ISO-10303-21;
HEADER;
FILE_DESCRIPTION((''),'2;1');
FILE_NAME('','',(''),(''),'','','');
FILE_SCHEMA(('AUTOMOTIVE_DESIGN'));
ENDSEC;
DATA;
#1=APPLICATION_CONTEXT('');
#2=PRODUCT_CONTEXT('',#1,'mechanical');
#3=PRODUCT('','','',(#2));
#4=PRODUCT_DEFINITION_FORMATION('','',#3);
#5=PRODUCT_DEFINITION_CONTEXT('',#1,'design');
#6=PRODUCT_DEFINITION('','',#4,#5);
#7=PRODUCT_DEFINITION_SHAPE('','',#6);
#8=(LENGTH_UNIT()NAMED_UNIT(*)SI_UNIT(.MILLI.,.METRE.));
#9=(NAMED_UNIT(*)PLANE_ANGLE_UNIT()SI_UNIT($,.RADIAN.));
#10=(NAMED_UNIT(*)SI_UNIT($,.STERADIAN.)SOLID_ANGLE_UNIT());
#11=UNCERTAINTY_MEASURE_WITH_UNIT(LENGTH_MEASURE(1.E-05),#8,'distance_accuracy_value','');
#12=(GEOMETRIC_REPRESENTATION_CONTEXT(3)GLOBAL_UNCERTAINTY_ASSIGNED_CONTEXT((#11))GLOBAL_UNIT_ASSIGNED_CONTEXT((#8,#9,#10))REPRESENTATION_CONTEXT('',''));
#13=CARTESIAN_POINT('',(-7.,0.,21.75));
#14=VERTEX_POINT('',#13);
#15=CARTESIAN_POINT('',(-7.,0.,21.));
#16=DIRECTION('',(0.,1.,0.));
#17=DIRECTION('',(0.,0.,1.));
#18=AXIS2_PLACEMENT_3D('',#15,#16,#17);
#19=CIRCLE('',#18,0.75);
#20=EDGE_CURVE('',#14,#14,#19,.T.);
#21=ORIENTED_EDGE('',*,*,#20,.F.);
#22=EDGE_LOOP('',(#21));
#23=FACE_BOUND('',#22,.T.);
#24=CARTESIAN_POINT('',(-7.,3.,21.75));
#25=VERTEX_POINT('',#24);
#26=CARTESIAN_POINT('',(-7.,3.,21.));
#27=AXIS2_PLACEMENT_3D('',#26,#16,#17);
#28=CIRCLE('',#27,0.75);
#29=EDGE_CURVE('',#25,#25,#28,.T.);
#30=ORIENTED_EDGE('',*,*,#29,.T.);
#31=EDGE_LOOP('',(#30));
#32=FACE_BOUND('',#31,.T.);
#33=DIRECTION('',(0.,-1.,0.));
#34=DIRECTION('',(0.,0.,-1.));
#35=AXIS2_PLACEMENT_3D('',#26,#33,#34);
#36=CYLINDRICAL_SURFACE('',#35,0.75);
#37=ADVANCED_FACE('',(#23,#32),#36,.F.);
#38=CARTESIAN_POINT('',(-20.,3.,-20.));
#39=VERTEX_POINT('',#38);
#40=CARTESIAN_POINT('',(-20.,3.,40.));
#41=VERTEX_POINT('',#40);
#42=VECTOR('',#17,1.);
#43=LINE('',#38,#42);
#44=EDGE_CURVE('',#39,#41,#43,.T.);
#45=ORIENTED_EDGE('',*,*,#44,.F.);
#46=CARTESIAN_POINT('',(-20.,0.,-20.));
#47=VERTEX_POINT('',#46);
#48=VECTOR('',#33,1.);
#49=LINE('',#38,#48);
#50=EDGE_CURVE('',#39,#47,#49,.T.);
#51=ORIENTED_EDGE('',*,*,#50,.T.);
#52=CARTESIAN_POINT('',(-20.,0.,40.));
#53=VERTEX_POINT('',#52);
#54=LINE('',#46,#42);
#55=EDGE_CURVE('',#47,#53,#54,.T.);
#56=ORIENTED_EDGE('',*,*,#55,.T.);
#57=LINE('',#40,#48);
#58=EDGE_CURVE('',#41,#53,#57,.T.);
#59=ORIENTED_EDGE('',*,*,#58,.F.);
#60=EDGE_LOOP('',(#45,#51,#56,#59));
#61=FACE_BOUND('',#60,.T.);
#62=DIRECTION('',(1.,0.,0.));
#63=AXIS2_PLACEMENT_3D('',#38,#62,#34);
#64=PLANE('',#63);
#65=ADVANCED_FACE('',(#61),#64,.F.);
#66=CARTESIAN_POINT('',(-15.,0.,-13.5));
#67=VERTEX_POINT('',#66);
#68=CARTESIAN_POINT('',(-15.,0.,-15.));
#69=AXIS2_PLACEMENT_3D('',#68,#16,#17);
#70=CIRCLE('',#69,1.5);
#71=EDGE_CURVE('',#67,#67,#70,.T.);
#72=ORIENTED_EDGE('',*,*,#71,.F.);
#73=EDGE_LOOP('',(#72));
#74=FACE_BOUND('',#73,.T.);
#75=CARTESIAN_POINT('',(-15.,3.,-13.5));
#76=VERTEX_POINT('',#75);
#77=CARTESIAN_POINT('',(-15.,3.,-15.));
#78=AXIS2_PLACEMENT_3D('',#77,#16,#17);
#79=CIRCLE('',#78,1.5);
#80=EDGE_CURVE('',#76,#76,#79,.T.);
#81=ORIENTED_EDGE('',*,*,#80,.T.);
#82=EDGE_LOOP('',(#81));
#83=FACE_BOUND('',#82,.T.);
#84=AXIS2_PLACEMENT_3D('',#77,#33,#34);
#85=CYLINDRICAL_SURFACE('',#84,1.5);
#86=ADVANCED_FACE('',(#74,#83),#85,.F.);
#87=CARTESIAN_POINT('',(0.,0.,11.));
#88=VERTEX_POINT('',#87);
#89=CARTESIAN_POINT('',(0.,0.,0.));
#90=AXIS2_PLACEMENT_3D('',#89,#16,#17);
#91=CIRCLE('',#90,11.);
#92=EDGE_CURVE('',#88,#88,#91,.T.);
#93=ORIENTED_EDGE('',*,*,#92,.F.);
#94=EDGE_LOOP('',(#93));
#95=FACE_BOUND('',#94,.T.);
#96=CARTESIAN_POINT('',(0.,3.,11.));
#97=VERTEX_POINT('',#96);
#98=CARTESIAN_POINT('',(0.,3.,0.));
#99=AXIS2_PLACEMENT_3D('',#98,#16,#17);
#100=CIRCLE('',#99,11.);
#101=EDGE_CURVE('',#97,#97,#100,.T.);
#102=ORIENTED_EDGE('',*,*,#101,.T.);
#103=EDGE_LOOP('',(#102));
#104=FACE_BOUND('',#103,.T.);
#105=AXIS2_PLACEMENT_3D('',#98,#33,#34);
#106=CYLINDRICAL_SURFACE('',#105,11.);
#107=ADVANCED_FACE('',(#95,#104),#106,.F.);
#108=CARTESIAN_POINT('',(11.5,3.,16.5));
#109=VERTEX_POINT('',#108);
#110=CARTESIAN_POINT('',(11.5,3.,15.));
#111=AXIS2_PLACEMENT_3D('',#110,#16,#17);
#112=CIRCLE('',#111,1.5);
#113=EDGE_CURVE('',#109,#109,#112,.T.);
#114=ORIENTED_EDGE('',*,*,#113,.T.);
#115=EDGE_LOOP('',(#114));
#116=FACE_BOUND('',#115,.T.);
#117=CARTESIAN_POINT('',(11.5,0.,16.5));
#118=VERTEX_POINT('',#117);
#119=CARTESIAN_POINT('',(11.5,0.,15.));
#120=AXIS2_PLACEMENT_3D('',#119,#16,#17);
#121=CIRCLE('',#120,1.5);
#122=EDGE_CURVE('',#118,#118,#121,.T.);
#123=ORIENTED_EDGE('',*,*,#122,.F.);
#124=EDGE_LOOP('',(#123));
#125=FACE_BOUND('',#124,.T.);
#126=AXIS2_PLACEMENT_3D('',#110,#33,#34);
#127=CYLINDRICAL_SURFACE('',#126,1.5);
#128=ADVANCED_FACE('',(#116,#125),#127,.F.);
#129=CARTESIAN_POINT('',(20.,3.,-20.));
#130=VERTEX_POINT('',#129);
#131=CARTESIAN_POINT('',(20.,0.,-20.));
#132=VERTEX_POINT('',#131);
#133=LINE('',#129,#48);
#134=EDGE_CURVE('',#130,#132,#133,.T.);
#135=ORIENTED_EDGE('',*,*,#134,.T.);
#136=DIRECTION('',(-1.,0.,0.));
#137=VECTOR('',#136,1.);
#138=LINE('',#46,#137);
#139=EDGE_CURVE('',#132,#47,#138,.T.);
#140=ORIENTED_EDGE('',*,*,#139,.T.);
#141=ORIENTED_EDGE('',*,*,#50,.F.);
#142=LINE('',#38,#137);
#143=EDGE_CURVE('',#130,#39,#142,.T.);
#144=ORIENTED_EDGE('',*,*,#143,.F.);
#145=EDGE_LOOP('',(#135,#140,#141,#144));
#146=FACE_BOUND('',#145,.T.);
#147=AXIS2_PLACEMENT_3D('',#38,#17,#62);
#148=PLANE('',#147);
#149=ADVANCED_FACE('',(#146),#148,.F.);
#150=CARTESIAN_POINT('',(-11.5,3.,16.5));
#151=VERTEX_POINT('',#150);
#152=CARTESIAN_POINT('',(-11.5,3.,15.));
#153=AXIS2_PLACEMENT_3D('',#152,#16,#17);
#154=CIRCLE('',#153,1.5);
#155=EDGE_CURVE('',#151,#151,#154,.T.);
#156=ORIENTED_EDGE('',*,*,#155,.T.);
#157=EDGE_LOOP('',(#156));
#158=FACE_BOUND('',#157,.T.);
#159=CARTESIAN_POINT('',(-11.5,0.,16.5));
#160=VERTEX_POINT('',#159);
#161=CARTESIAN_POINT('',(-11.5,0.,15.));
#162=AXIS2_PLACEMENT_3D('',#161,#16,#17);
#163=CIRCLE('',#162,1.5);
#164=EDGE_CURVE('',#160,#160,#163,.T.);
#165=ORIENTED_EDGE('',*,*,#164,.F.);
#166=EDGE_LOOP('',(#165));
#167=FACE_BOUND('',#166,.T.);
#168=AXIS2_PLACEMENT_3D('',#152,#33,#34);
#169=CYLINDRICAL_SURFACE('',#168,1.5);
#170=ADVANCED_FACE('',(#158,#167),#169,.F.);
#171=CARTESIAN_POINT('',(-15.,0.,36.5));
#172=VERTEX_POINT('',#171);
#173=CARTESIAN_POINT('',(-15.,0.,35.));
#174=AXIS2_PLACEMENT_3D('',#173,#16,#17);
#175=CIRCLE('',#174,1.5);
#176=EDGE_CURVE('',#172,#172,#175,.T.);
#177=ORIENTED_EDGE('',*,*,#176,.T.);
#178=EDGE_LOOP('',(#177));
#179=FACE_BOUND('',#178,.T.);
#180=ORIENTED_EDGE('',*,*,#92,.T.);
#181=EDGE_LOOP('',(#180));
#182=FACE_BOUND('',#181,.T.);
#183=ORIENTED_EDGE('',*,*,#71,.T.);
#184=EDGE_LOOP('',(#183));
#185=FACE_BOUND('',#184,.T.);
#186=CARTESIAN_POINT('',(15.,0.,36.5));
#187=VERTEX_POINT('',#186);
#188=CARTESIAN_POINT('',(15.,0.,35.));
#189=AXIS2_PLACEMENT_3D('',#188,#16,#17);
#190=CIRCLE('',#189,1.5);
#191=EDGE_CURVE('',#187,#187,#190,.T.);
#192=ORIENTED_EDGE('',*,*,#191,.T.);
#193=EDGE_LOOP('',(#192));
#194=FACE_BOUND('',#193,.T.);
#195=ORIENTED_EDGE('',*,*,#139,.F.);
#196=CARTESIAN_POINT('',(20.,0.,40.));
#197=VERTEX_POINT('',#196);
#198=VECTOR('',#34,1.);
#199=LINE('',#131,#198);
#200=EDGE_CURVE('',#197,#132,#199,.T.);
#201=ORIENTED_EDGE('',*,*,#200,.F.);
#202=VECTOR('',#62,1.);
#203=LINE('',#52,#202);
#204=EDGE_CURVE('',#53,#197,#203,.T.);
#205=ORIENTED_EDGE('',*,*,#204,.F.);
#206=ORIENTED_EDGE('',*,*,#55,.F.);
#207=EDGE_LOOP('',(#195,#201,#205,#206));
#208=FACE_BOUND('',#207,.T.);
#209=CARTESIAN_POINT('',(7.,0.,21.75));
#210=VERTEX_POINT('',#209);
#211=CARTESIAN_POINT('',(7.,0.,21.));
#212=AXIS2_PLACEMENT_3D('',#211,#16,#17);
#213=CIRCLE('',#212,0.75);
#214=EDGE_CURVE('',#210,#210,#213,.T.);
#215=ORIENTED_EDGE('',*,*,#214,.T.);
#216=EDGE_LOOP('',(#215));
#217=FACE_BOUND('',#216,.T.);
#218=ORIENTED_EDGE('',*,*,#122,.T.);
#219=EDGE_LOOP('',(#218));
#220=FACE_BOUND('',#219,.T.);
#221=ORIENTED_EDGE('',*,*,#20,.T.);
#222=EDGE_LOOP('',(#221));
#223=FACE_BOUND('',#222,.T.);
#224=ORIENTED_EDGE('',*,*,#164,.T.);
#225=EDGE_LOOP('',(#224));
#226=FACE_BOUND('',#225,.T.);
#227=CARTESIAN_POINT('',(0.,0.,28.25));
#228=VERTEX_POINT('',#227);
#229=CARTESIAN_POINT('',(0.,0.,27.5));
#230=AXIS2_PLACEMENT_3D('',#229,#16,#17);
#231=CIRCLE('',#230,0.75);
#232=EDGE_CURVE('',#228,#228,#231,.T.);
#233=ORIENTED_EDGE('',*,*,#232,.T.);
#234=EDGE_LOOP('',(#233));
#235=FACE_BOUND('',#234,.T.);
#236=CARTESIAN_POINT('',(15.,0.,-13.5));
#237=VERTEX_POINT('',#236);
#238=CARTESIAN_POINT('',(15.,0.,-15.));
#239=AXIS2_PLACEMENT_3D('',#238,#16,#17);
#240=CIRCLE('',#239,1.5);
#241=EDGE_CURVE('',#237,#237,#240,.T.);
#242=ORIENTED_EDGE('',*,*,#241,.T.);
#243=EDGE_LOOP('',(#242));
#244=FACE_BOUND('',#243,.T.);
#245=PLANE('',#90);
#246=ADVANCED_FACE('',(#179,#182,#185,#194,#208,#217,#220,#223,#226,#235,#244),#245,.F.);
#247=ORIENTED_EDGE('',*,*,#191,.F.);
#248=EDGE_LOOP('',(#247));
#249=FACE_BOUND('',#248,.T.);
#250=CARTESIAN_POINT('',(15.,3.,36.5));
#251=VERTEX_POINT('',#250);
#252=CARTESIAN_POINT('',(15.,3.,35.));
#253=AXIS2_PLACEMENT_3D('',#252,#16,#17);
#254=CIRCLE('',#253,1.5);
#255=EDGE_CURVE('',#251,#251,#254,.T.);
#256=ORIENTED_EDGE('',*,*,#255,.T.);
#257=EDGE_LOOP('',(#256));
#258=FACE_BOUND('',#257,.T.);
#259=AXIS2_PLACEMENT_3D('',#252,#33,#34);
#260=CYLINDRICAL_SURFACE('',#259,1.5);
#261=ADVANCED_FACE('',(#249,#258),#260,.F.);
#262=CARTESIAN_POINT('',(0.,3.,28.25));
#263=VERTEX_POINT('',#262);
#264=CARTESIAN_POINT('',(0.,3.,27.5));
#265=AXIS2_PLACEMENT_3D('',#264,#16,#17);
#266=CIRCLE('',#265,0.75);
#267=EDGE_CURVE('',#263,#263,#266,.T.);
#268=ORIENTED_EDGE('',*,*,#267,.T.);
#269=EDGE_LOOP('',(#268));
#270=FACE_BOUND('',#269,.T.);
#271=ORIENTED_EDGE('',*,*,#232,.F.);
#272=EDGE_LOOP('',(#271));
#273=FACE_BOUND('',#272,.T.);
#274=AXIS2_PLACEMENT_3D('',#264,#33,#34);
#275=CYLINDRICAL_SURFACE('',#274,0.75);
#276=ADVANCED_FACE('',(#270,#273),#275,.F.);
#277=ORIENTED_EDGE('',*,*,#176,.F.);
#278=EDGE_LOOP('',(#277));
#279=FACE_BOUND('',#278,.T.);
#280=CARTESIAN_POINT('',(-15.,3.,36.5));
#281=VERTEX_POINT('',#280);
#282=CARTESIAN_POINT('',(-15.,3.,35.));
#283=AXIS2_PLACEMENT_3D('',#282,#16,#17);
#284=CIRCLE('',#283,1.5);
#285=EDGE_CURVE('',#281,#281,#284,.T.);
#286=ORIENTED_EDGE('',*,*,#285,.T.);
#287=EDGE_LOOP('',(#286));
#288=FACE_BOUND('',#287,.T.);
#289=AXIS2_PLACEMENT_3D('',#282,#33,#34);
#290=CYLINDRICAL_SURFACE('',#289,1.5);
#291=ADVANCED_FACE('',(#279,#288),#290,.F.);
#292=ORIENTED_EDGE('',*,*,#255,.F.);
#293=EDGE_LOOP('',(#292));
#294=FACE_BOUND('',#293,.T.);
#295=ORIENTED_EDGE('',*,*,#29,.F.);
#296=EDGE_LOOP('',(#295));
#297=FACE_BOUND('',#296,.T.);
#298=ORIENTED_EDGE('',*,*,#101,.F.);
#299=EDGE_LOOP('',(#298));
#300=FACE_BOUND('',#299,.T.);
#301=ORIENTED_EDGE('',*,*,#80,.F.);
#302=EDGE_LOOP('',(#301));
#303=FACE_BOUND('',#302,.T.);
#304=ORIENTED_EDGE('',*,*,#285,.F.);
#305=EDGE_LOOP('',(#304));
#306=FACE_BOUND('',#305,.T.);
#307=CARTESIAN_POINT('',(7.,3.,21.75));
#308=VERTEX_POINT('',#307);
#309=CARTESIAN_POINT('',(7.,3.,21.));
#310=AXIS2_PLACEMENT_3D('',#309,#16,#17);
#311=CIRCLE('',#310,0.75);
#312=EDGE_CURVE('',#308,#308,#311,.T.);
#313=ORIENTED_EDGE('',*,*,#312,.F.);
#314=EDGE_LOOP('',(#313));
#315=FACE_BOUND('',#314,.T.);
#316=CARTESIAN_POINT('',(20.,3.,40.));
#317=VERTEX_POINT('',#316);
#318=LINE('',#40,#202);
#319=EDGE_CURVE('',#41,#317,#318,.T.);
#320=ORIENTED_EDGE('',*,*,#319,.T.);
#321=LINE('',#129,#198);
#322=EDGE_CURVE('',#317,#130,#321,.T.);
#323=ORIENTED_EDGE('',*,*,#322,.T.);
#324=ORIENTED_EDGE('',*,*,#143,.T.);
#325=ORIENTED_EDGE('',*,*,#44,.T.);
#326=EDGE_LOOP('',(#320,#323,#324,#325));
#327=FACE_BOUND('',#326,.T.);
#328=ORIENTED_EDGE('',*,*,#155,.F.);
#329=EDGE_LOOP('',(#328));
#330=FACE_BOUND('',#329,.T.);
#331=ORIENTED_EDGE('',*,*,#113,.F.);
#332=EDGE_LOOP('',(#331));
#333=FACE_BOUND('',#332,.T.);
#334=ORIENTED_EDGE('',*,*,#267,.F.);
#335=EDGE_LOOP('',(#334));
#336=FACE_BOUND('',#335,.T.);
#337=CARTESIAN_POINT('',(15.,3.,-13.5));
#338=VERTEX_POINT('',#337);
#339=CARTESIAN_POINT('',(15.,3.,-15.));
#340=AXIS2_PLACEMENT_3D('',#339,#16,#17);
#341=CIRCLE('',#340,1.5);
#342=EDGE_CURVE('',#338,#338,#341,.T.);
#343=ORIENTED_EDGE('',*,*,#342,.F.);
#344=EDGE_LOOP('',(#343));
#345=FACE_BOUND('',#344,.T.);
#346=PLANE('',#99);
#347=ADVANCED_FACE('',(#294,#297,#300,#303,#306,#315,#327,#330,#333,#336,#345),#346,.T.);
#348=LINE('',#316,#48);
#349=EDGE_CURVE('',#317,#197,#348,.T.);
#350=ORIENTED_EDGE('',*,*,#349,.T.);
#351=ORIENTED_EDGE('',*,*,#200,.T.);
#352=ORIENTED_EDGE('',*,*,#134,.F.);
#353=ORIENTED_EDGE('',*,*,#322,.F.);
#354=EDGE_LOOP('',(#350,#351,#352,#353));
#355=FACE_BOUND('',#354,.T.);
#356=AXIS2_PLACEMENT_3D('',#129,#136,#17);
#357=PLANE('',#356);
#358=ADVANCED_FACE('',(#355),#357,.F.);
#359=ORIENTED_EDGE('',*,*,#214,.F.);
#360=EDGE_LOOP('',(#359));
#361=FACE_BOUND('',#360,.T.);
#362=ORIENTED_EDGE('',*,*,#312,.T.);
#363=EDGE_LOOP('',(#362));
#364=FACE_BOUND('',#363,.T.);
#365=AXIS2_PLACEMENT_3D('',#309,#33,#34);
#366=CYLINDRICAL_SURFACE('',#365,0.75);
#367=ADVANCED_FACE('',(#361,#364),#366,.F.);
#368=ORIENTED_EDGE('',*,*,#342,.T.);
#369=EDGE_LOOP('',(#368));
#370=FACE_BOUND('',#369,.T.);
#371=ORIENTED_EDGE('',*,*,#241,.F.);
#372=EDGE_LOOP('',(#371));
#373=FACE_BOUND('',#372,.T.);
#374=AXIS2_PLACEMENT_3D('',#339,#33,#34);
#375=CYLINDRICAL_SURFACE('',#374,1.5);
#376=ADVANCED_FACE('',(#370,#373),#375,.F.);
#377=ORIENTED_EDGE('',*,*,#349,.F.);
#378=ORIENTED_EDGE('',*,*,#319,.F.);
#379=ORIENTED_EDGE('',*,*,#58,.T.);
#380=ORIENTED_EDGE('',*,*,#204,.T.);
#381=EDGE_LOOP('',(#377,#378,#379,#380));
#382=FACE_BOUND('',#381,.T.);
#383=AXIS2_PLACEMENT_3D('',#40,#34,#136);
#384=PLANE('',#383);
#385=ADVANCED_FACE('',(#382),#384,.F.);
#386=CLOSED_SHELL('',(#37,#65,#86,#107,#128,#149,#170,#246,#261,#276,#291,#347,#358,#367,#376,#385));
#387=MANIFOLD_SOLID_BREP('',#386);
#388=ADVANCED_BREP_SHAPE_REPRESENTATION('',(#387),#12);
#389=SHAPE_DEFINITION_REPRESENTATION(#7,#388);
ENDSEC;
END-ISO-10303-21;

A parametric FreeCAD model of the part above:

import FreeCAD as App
import Part
import Sketcher
Q = App.Units.Quantity

doc = App.newDocument("Part")
body = doc.addObject("PartDesign::Body", "Body")

sketch1 = body.newObject("Sketcher::SketchObject", "Sketch")
sketch1.AttachmentSupport = (doc.getObject("XZ_Plane"), [""])
sketch1.MapMode = "FlatFace"
sketch1.addGeometry([
    Part.LineSegment(App.Vector(-20, -20, 0), App.Vector(-20, 40, 0)),
    Part.LineSegment(App.Vector(-20, 40, 0), App.Vector(20, 40, 0)),
    Part.LineSegment(App.Vector(20, 40, 0), App.Vector(20, -20, 0)),
    Part.LineSegment(App.Vector(20, -20, 0), App.Vector(-20, -20, 0)),
    Part.Circle(App.Vector(-15, 35, 0), App.Vector(0, 0, 1), 1.5),
    Part.Circle(App.Vector(-11.5, 15, 0), App.Vector(0, 0, 1), 1.5),
    Part.Circle(App.Vector(-7, 21, 0), App.Vector(0, 0, 1), 0.8),
    Part.Circle(App.Vector(0, 27.5, 0), App.Vector(0, 0, 1), 0.8),
    Part.Circle(App.Vector(15, 35, 0), App.Vector(0, 0, 1), 1.5),
    Part.Circle(App.Vector(7, 21, 0), App.Vector(0, 0, 1), 0.8),
    Part.Circle(App.Vector(11.5, 15, 0), App.Vector(0, 0, 1), 1.5),
    Part.Circle(App.Vector(-15, -15, 0), App.Vector(0, 0, 1), 1.5),
    Part.Circle(App.Vector(0, 0, 0), App.Vector(0, 0, 1), 11),
    Part.Circle(App.Vector(15, -15, 0), App.Vector(0, 0, 1), 1.5),
], False)
sketch1.addConstraint([
    Sketcher.Constraint("Coincident", 0, 2, 1, 1),
    Sketcher.Constraint("Coincident", 1, 2, 2, 1),
    Sketcher.Constraint("Coincident", 2, 2, 3, 1),
    Sketcher.Constraint("Coincident", 3, 2, 0, 1),
    Sketcher.Constraint("Vertical", 0),
    Sketcher.Constraint("Horizontal", 1),
    Sketcher.Constraint("Vertical", 2),
    Sketcher.Constraint("Horizontal", 3),
    Sketcher.Constraint("Coincident", 12, 3, -1, 1),
    Sketcher.Constraint("Equal", 4, 5),
    Sketcher.Constraint("Equal", 6, 7),
    Sketcher.Constraint("Equal", 5, 8),
    Sketcher.Constraint("Equal", 7, 9),
    Sketcher.Constraint("Equal", 8, 10),
    Sketcher.Constraint("Equal", 10, 11),
    Sketcher.Constraint("Equal", 11, 13),
    Sketcher.Constraint("Symmetric", 4, 3, 8, 3, -2),
    Sketcher.Constraint("Symmetric", 6, 3, 9, 3, -2),
    Sketcher.Constraint("Symmetric", 5, 3, 10, 3, -2),
    Sketcher.Constraint("Symmetric", 11, 3, 13, 3, -2),
    Sketcher.Constraint("PointOnObject", 7, 3, -2),
    Sketcher.Constraint("Vertical", 4, 3, 11, 3),
    Sketcher.Constraint("Diameter", 4, Q("3 mm")),
    Sketcher.Constraint("Diameter", 12, Q("22 mm")),
    Sketcher.Constraint("Diameter", 6, Q("1.5 mm")),
    Sketcher.Constraint("DistanceX", 1, 1, 1, 2, Q("40 mm")),
    Sketcher.Constraint("DistanceY", 0, 1, 0, 2, Q("60 mm")),
    Sketcher.Constraint("DistanceX", 4, 3, -1, 1, Q("15 mm")),
    Sketcher.Constraint("DistanceY", -1, 1, 4, 3, Q("35 mm")),
    Sketcher.Constraint("DistanceY", -1, 1, 5, 3, Q("15 mm")),
    Sketcher.Constraint("DistanceX", 6, 3, -1, 1, Q("7 mm")),
    Sketcher.Constraint("DistanceY", -1, 1, 6, 3, Q("21 mm")),
    Sketcher.Constraint("DistanceY", 11, 3, -1, 1, Q("15 mm")),
    Sketcher.Constraint("DistanceX", 0, 2, -1, 1, Q("20 mm")),
    Sketcher.Constraint("DistanceY", -1, 1, 0, 2, Q("40 mm")),
    Sketcher.Constraint("DistanceX", 5, 3, 10, 3, Q("23 mm")),
    Sketcher.Constraint("DistanceY", -1, 1, 7, 3, Q("27.5 mm")),
])
pad1 = body.newObject("PartDesign::Pad", "Pad")
pad1.Profile = sketch1
pad1.Length = 3
pad1.Reversed = True

doc.recompute()
